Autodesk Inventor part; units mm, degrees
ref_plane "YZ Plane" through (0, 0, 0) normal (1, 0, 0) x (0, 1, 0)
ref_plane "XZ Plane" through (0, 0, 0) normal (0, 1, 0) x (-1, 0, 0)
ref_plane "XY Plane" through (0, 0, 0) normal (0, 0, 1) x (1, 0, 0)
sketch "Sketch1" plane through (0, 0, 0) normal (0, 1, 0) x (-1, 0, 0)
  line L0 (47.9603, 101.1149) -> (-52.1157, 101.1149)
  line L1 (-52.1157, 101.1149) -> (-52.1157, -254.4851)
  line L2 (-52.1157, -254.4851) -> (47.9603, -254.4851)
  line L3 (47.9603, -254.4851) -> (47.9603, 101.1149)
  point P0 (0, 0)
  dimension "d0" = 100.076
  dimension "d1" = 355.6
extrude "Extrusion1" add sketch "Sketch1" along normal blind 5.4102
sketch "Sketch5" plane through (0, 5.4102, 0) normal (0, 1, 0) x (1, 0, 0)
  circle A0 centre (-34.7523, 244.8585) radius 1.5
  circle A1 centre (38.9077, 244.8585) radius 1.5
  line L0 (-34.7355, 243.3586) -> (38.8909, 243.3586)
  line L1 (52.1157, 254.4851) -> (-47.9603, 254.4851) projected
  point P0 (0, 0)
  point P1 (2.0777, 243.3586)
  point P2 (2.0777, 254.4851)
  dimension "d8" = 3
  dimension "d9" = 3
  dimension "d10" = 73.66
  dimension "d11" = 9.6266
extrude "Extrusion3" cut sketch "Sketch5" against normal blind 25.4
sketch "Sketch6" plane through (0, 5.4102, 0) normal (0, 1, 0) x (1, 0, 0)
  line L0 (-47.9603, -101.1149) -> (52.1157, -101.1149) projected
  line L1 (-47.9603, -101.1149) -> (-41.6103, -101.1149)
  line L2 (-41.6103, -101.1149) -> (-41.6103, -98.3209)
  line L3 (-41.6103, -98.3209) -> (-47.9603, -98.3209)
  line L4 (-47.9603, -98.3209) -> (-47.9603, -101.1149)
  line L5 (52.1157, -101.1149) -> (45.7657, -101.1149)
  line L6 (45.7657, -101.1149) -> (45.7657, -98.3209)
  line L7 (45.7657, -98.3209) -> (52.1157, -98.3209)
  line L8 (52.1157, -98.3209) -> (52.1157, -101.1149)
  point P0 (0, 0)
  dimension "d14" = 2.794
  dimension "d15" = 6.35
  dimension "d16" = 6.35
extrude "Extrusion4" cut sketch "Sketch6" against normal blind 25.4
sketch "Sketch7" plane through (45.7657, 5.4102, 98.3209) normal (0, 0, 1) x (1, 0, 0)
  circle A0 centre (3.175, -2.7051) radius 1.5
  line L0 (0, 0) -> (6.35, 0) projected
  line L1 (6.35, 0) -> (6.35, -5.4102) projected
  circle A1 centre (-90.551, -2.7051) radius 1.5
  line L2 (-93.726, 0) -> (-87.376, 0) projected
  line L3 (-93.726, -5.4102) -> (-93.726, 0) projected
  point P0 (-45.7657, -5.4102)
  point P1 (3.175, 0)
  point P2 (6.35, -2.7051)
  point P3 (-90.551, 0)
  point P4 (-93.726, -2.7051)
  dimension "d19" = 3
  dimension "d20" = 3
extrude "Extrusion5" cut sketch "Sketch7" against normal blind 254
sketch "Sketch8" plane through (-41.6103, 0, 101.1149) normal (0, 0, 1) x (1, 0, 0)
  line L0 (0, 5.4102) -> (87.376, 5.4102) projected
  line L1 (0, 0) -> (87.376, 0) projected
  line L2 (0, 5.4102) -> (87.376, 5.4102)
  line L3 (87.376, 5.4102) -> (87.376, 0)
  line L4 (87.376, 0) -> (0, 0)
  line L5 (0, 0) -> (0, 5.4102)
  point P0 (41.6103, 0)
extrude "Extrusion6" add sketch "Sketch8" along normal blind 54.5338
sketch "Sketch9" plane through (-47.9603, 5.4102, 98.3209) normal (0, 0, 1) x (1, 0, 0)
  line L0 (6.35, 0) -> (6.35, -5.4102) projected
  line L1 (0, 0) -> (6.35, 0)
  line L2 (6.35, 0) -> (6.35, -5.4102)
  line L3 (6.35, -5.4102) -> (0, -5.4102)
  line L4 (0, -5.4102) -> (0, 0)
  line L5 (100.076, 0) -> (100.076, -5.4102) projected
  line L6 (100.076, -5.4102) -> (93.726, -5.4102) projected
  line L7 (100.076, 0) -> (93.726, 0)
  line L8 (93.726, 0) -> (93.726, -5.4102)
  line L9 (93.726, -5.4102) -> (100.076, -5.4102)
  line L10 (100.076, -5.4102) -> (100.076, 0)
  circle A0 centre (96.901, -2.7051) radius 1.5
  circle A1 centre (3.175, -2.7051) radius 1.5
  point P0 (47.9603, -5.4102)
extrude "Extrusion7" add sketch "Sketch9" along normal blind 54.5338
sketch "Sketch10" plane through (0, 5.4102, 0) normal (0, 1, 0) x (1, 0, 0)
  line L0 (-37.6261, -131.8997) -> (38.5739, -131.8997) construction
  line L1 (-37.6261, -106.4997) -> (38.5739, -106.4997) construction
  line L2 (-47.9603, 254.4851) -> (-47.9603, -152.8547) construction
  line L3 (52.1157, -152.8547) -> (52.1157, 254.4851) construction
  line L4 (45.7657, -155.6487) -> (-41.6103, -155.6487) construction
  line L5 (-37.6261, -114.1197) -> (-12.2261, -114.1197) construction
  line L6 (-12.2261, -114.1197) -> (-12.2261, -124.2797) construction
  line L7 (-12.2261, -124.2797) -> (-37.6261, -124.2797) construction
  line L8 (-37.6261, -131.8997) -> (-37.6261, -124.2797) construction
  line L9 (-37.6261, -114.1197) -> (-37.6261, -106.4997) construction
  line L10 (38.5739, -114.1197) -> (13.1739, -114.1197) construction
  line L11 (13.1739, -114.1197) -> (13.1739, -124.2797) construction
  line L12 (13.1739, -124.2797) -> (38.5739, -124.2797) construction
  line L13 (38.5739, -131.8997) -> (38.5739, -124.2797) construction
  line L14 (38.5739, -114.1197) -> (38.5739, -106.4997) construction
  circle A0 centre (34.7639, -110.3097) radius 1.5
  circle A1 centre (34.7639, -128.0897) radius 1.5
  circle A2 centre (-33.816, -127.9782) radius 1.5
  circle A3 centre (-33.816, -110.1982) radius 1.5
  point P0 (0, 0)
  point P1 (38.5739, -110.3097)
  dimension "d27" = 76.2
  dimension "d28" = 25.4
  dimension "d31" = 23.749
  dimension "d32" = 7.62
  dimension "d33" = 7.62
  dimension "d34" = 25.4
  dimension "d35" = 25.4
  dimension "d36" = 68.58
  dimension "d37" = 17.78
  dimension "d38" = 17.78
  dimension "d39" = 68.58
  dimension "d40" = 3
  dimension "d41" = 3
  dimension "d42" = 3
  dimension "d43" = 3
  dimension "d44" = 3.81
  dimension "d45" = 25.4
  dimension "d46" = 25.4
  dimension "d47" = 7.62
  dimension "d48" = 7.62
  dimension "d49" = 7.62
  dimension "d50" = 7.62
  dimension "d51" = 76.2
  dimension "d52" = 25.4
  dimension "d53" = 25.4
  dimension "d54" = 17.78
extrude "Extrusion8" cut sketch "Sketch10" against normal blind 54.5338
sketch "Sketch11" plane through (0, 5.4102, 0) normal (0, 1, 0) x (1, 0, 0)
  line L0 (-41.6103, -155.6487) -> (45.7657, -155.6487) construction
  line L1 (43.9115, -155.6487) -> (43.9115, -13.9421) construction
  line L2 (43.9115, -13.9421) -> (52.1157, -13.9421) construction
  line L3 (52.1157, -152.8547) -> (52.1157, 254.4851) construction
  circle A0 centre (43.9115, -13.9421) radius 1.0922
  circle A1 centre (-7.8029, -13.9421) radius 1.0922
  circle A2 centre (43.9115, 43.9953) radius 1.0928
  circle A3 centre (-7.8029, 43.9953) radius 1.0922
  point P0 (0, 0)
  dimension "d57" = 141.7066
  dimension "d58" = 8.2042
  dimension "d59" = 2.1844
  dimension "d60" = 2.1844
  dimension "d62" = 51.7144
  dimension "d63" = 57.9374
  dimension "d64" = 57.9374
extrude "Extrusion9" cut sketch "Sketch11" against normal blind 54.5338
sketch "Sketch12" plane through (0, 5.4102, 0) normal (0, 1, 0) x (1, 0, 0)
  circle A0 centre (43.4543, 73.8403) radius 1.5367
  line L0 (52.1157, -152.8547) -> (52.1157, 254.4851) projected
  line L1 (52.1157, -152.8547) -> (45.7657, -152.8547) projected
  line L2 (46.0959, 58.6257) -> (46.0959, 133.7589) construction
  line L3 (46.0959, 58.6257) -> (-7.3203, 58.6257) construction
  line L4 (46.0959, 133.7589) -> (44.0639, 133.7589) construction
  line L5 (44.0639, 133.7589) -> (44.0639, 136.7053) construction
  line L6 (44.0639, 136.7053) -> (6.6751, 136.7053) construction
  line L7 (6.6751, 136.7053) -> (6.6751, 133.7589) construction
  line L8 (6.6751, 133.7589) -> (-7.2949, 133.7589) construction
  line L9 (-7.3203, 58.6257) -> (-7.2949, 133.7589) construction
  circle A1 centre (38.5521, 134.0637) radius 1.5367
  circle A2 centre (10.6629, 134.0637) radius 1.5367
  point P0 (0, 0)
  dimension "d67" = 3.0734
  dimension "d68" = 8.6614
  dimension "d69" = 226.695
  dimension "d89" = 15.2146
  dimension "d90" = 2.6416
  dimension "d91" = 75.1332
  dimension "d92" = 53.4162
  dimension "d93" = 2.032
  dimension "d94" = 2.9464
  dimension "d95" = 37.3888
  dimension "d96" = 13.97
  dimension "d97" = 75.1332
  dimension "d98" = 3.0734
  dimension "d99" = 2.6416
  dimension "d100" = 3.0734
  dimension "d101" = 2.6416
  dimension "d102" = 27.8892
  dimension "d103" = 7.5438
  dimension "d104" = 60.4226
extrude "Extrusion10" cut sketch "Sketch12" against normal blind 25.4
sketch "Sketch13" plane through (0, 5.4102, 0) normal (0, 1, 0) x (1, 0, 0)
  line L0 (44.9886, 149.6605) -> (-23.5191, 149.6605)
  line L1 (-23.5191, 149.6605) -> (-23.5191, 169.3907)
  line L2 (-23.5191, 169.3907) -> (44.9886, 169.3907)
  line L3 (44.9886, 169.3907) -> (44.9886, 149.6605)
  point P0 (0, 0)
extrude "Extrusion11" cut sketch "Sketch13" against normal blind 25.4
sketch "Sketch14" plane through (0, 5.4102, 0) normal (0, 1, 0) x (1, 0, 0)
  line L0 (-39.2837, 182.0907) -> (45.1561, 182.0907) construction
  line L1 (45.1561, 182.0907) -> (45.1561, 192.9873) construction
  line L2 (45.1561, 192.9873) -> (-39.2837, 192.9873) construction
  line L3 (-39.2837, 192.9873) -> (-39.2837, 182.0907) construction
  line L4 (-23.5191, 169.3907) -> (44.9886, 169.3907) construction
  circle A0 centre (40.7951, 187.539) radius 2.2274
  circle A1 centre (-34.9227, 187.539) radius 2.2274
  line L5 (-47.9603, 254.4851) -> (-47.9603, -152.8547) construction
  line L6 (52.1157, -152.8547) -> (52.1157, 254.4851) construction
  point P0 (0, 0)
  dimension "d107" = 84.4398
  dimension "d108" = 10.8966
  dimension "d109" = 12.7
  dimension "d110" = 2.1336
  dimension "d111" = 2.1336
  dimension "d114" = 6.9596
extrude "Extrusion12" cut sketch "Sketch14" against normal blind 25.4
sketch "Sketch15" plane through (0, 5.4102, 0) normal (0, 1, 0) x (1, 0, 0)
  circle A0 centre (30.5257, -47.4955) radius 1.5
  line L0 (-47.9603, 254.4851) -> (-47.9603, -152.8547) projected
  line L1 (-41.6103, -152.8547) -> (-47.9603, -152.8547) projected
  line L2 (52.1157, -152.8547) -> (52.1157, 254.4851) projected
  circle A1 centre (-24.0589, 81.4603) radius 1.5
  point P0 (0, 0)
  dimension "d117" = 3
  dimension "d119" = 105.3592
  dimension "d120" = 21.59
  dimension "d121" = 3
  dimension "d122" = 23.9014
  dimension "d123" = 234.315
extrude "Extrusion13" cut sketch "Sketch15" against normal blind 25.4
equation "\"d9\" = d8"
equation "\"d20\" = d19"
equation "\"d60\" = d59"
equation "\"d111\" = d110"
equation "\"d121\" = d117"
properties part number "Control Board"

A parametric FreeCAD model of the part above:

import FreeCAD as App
import Part
import Sketcher
Q = App.Units.Quantity


def add_polygon(sketch, points):
    """Adds a closed chain of lines whose ends are joined by coincident constraints."""
    first, n = sketch.GeometryCount, len(points)
    for a, b in zip(points, points[1:] + points[:1]):
        sketch.addGeometry(Part.LineSegment(App.Vector(*a, 0), App.Vector(*b, 0)), False)
    for i in range(n):
        sketch.addConstraint(Sketcher.Constraint("Coincident", first + i, 2, first + (i + 1) % n, 1))

doc = App.newDocument("Part")
params = doc.addObject("Spreadsheet::Sheet", "Params")
for row, (alias, value) in enumerate([
    ("sketch1_height", "14 in"),
    ("sketch1_width", "3.94 in"),
    ("pad1_length", "0.213 in"),
    ("pocket1_length", "1 in"),
    ("sketch3_width", "0.25 in"),
    ("sketch3_height", "0.11 in"),
    ("pocket2_length", "1 in"),
    ("pocket3_length", "10 in"),
    ("sketch5_width", "3.44 in"),
    ("sketch5_height", "0.213 in"),
    ("pad2_length", "2.147 in"),
    ("sketch6_width", "0.25 in"),
    ("sketch6_height", "0.213 in"),
    ("pad3_length", "2.147 in"),
    ("pocket4_length", "2.147 in"),
    ("sketch8_diameter", "0.086 in"),
    ("pocket5_length", "2.147 in"),
    ("sketch9_diameter", "0.121 in"),
    ("pocket6_length", "1 in"),
    ("pocket7_length", "1 in"),
    ("pocket8_length", "1 in"),
    ("pocket9_length", "1 in"),
], start=1):
    params.set(f"A{row}", alias)
    params.set(f"B{row}", "=" + value)
    params.setAlias(f"B{row}", alias)

body = doc.addObject("PartDesign::Body", "Body")

# Sketch on XZ plane
sketch1 = doc.addObject("Sketcher::SketchObject", "Sketch")
body.addObject(sketch1)
sketch1.AttachmentSupport = (doc.XZ_Plane, [""])
sketch1.MapMode = "FlatFace"
add_polygon(sketch1, [(-48, -254), (-48, 101), (52, 101), (52, -254)])  # lines 0-3
sketch1.addConstraint(Sketcher.Constraint("Vertical", 0))
sketch1.addConstraint(Sketcher.Constraint("Horizontal", 1))
sketch1.addConstraint(Sketcher.Constraint("Vertical", 2))
sketch1.addConstraint(Sketcher.Constraint("Horizontal", 3))
sketch1.addConstraint(Sketcher.Constraint("DistanceY", 0, 1, 0, 2, Q("14 in")))
sketch1.addConstraint(Sketcher.Constraint("DistanceX", 1, 1, 1, 2, Q("3.94 in")))
sketch1.addConstraint(Sketcher.Constraint("DistanceX", 0, 2, -1, 1, Q("1.8882 in")))
sketch1.addConstraint(Sketcher.Constraint("DistanceY", -1, 1, 0, 2, Q("3.9809 in")))
sketch1.setExpression("Constraints[8]", "Params.sketch1_height")
sketch1.setExpression("Constraints[9]", "Params.sketch1_width")
pad1 = doc.addObject("PartDesign::Pad", "Pad")
body.addObject(pad1)
pad1.Profile = sketch1
pad1.setExpression("Length", "Params.pad1_length")
pad1.Reversed = True

# Sketch on XZ plane
sketch2 = doc.addObject("Sketcher::SketchObject", "Sketch001")
body.addObject(sketch2)
sketch2.AttachmentSupport = (doc.XZ_Plane, [""])
sketch2.MapMode = "FlatFace"
sketch2.AttachmentOffset = App.Placement(App.Vector(0, 0, -0.213 * 25.4), App.Rotation())
sketch2.addGeometry(Part.Circle(App.Vector(-34.8, -244.9, 0), App.Vector(0, 0, 1), 1.5), False)
sketch2.addGeometry(Part.Circle(App.Vector(38.9, -244.9, 0), App.Vector(0, 0, 1), 1.5), False)
sketch2.addConstraint(Sketcher.Constraint("Equal", 0, 1))
sketch2.addConstraint(Sketcher.Constraint("Horizontal", 0, 3, 1, 3))
sketch2.addConstraint(Sketcher.Constraint("Diameter", 0, Q("0.1181 in")))
sketch2.addConstraint(Sketcher.Constraint("DistanceX", 0, 3, 1, 3, Q("2.9 in")))
sketch2.addConstraint(Sketcher.Constraint("DistanceX", 0, 3, -1, 1, Q("1.3682 in")))
sketch2.addConstraint(Sketcher.Constraint("DistanceY", 0, 3, -1, 1, Q("9.6401 in")))
pocket1 = doc.addObject("PartDesign::Pocket", "Pocket")
body.addObject(pocket1)
pocket1.Profile = sketch2
pocket1.setExpression("Length", "Params.pocket1_length")
pocket1.Reversed = True

# Sketch on XZ plane
sketch3 = doc.addObject("Sketcher::SketchObject", "Sketch002")
body.addObject(sketch3)
sketch3.AttachmentSupport = (doc.XZ_Plane, [""])
sketch3.MapMode = "FlatFace"
sketch3.AttachmentOffset = App.Placement(App.Vector(0, 0, -0.213 * 25.4), App.Rotation())
add_polygon(sketch3, [(-48, 98.3), (-48, 101.1), (-41.6, 101.1), (-41.6, 98.3)])  # lines 0-3
add_polygon(sketch3, [(45.8, 98.3), (45.8, 101.1), (52.1, 101.1), (52.1, 98.3)])  # lines 4-7
sketch3.addConstraint(Sketcher.Constraint("Vertical", 0))
sketch3.addConstraint(Sketcher.Constraint("Horizontal", 1))
sketch3.addConstraint(Sketcher.Constraint("Vertical", 2))
sketch3.addConstraint(Sketcher.Constraint("Horizontal", 3))
sketch3.addConstraint(Sketcher.Constraint("Vertical", 4))
sketch3.addConstraint(Sketcher.Constraint("Horizontal", 5))
sketch3.addConstraint(Sketcher.Constraint("Vertical", 6))
sketch3.addConstraint(Sketcher.Constraint("Horizontal", 7))
sketch3.addConstraint(Sketcher.Constraint("Horizontal", 1, 2, 4, 2))
sketch3.addConstraint(Sketcher.Constraint("Horizontal", 3, 2, 6, 2))
sketch3.addConstraint(Sketcher.Constraint("Equal", 3, 5))
sketch3.addConstraint(Sketcher.Constraint("DistanceX", 1, 1, 1, 2, Q("0.25 in")))
sketch3.addConstraint(Sketcher.Constraint("DistanceY", 0, 1, 0, 2, Q("0.11 in")))
sketch3.addConstraint(Sketcher.Constraint("DistanceX", 1, 2, 4, 2, Q("3.44 in")))
sketch3.addConstraint(Sketcher.Constraint("DistanceX", 0, 2, -1, 1, Q("1.8882 in")))
sketch3.addConstraint(Sketcher.Constraint("DistanceY", -1, 1, 0, 2, Q("3.9809 in")))
sketch3.setExpression("Constraints[19]", "Params.sketch3_width")
sketch3.setExpression("Constraints[20]", "Params.sketch3_height")
pocket2 = doc.addObject("PartDesign::Pocket", "Pocket001")
body.addObject(pocket2)
pocket2.Profile = sketch3
pocket2.setExpression("Length", "Params.pocket2_length")
pocket2.Reversed = True

# Sketch on XY plane
sketch4 = doc.addObject("Sketcher::SketchObject", "Sketch003")
body.addObject(sketch4)
sketch4.AttachmentSupport = (doc.XY_Plane, [""])
sketch4.MapMode = "FlatFace"
sketch4.AttachmentOffset = App.Placement(App.Vector(0, 0, 3.8709016 * 25.4), App.Rotation())
sketch4.addGeometry(Part.Circle(App.Vector(48.9, 2.7, 0), App.Vector(0, 0, 1), 1.5), False)
sketch4.addGeometry(Part.Circle(App.Vector(-44.8, 2.7, 0), App.Vector(0, 0, 1), 1.5), False)
sketch4.addConstraint(Sketcher.Constraint("Equal", 0, 1))
sketch4.addConstraint(Sketcher.Constraint("Horizontal", 0, 3, 1, 3))
sketch4.addConstraint(Sketcher.Constraint("Diameter", 0, Q("0.1181 in")))
sketch4.addConstraint(Sketcher.Constraint("DistanceX", 1, 3, 0, 3, Q("3.69 in")))
sketch4.addConstraint(Sketcher.Constraint("DistanceX", -1, 1, 0, 3, Q("1.9268 in")))
sketch4.addConstraint(Sketcher.Constraint("DistanceY", -1, 1, 0, 3, Q("0.1065 in")))
pocket3 = doc.addObject("PartDesign::Pocket", "Pocket002")
body.addObject(pocket3)
pocket3.Profile = sketch4
pocket3.setExpression("Length", "Params.pocket3_length")

# Sketch on XY plane
sketch5 = doc.addObject("Sketcher::SketchObject", "Sketch004")
body.addObject(sketch5)
sketch5.AttachmentSupport = (doc.XY_Plane, [""])
sketch5.MapMode = "FlatFace"
sketch5.AttachmentOffset = App.Placement(App.Vector(0, 0, 3.9809016 * 25.4), App.Rotation())
add_polygon(sketch5, [(46, 5), (-42, 5), (-42, 0), (46, 0)])  # lines 0-3
sketch5.addConstraint(Sketcher.Constraint("Horizontal", 0))
sketch5.addConstraint(Sketcher.Constraint("Vertical", 1))
sketch5.addConstraint(Sketcher.Constraint("Horizontal", 2))
sketch5.addConstraint(Sketcher.Constraint("Vertical", 3))
sketch5.addConstraint(Sketcher.Constraint("PointOnObject", 1, 2, -1))
sketch5.addConstraint(Sketcher.Constraint("DistanceX", 0, 2, 0, 1, Q("3.44 in")))
sketch5.addConstraint(Sketcher.Constraint("DistanceY", 1, 2, 1, 1, Q("0.213 in")))
sketch5.addConstraint(Sketcher.Constraint("DistanceX", 0, 2, -1, 1, Q("1.6382 in")))
sketch5.setExpression("Constraints[9]", "Params.sketch5_width")
sketch5.setExpression("Constraints[10]", "Params.sketch5_height")
pad2 = doc.addObject("PartDesign::Pad", "Pad001")
body.addObject(pad2)
pad2.Profile = sketch5
pad2.setExpression("Length", "Params.pad2_length")

# Sketch on XY plane
sketch6 = doc.addObject("Sketcher::SketchObject", "Sketch005")
body.addObject(sketch6)
sketch6.AttachmentSupport = (doc.XY_Plane, [""])
sketch6.MapMode = "FlatFace"
sketch6.AttachmentOffset = App.Placement(App.Vector(0, 0, 3.8709016 * 25.4), App.Rotation())
add_polygon(sketch6, [(-41.6, 0), (-41.6, 5.4), (-48, 5.4), (-48, 0)])  # lines 0-3
sketch6.addGeometry(Part.Circle(App.Vector(-44.8, 2.7, 0), App.Vector(0, 0, 1), 1.5), False)  # 4
add_polygon(sketch6, [(52.1, 0), (52.1, 5.4), (45.8, 5.4), (45.8, 0)])  # lines 5-8
sketch6.addGeometry(Part.Circle(App.Vector(48.9, 2.7, 0), App.Vector(0, 0, 1), 1.5), False)  # 9
sketch6.addConstraint(Sketcher.Constraint("Vertical", 0))
sketch6.addConstraint(Sketcher.Constraint("Horizontal", 1))
sketch6.addConstraint(Sketcher.Constraint("Vertical", 2))
sketch6.addConstraint(Sketcher.Constraint("Horizontal", 3))
sketch6.addConstraint(Sketcher.Constraint("Vertical", 5))
sketch6.addConstraint(Sketcher.Constraint("Horizontal", 6))
sketch6.addConstraint(Sketcher.Constraint("Vertical", 7))
sketch6.addConstraint(Sketcher.Constraint("Horizontal", 8))
sketch6.addConstraint(Sketcher.Constraint("Equal", 4, 9))
sketch6.addConstraint(Sketcher.Constraint("PointOnObject", 2, 2, -1))
sketch6.addConstraint(Sketcher.Constraint("PointOnObject", 7, 2, -1))
sketch6.addConstraint(Sketcher.Constraint("Horizontal", 4, 3, 9, 3))
sketch6.addConstraint(Sketcher.Constraint("Horizontal", 1, 2, 5, 2))
sketch6.addConstraint(Sketcher.Constraint("Equal", 3, 6))
sketch6.addConstraint(Sketcher.Constraint("Diameter", 4, Q("0.1181 in")))
sketch6.addConstraint(Sketcher.Constraint("DistanceX", 1, 2, 1, 1, Q("0.25 in")))
sketch6.addConstraint(Sketcher.Constraint("DistanceY", 0, 1, 0, 2, Q("0.213 in")))
sketch6.addConstraint(Sketcher.Constraint("DistanceX", 4, 3, 9, 3, Q("3.69 in")))
sketch6.addConstraint(Sketcher.Constraint("DistanceX", 0, 2, 5, 2, Q("3.69 in")))
sketch6.addConstraint(Sketcher.Constraint("DistanceX", 4, 3, 0, 2, Q("0.125 in")))
sketch6.addConstraint(Sketcher.Constraint("DistanceX", 4, 3, -1, 1, Q("1.7632 in")))
sketch6.addConstraint(Sketcher.Constraint("DistanceY", -1, 1, 4, 3, Q("0.1065 in")))
sketch6.setExpression("Constraints[23]", "Params.sketch6_width")
sketch6.setExpression("Constraints[24]", "Params.sketch6_height")
pad3 = doc.addObject("PartDesign::Pad", "Pad002")
body.addObject(pad3)
pad3.Profile = sketch6
pad3.setExpression("Length", "Params.pad3_length")

# Sketch on XZ plane
sketch7 = doc.addObject("Sketcher::SketchObject", "Sketch006")
body.addObject(sketch7)
sketch7.AttachmentSupport = (doc.XZ_Plane, [""])
sketch7.MapMode = "FlatFace"
sketch7.AttachmentOffset = App.Placement(App.Vector(0, 0, -0.213 * 25.4), App.Rotation())
sketch7.addGeometry(Part.Circle(App.Vector(34.8, 110.3, 0), App.Vector(0, 0, 1), 1.5), False)
sketch7.addGeometry(Part.Circle(App.Vector(34.8, 128.1, 0), App.Vector(0, 0, 1), 1.5), False)
sketch7.addGeometry(Part.Circle(App.Vector(-33.8, 128, 0), App.Vector(0, 0, 1), 1.5), False)
sketch7.addGeometry(Part.Circle(App.Vector(-33.8, 110.2, 0), App.Vector(0, 0, 1), 1.5), False)
sketch7.addConstraint(Sketcher.Constraint("Equal", 0, 1))
sketch7.addConstraint(Sketcher.Constraint("Equal", 1, 2))
sketch7.addConstraint(Sketcher.Constraint("Equal", 2, 3))
sketch7.addConstraint(Sketcher.Constraint("Vertical", 0, 3, 1, 3))
sketch7.addConstraint(Sketcher.Constraint("Vertical", 2, 3, 3, 3))
sketch7.addConstraint(Sketcher.Constraint("Diameter", 0, Q("0.1181 in")))
sketch7.addConstraint(Sketcher.Constraint("DistanceY", 0, 3, 1, 3, Q("0.7 in")))
sketch7.addConstraint(Sketcher.Constraint("DistanceX", 2, 3, 1, 3, Q("2.7 in")))
sketch7.addConstraint(Sketcher.Constraint("DistanceY", 3, 3, 2, 3, Q("0.7 in")))
sketch7.addConstraint(Sketcher.Constraint("DistanceY", -1, 1, 0, 3, Q("4.3429 in")))
sketch7.addConstraint(Sketcher.Constraint("DistanceY", -1, 1, 2, 3, Q("5.0385 in")))
sketch7.addConstraint(Sketcher.Constraint("DistanceX", -1, 1, 0, 3, Q("34.764 mm")))
pocket4 = doc.addObject("PartDesign::Pocket", "Pocket003")
body.addObject(pocket4)
pocket4.Profile = sketch7
pocket4.setExpression("Length", "Params.pocket4_length")
pocket4.Reversed = True

# Sketch on XZ plane
sketch8 = doc.addObject("Sketcher::SketchObject", "Sketch007")
body.addObject(sketch8)
sketch8.AttachmentSupport = (doc.XZ_Plane, [""])
sketch8.MapMode = "FlatFace"
sketch8.AttachmentOffset = App.Placement(App.Vector(0, 0, -0.213 * 25.4), App.Rotation())
sketch8.addGeometry(Part.Circle(App.Vector(43.9, 13.9, 0), App.Vector(0, 0, 1), 1.1), False)
sketch8.addGeometry(Part.Circle(App.Vector(-7.8, 13.9, 0), App.Vector(0, 0, 1), 1.1), False)
sketch8.addGeometry(Part.Circle(App.Vector(43.9, -44, 0), App.Vector(0, 0, 1), 1.1), False)
sketch8.addGeometry(Part.Circle(App.Vector(-7.8, -44, 0), App.Vector(0, 0, 1), 1.1), False)
sketch8.addConstraint(Sketcher.Constraint("Equal", 0, 1))
sketch8.addConstraint(Sketcher.Constraint("Equal", 1, 3))
sketch8.addConstraint(Sketcher.Constraint("Horizontal", 0, 3, 1, 3))
sketch8.addConstraint(Sketcher.Constraint("Horizontal", 2, 3, 3, 3))
sketch8.addConstraint(Sketcher.Constraint("Vertical", 0, 3, 2, 3))
sketch8.addConstraint(Sketcher.Constraint("Vertical", 1, 3, 3, 3))
sketch8.addConstraint(Sketcher.Constraint("Diameter", 0, Q("0.086 in")))
sketch8.addConstraint(Sketcher.Constraint("DistanceX", 1, 3, 0, 3, Q("2.036 in")))
sketch8.addConstraint(Sketcher.Constraint("DistanceY", 2, 3, 0, 3, Q("2.281 in")))
sketch8.addConstraint(Sketcher.Constraint("Diameter", 2, Q("2.1856 mm")))
sketch8.addConstraint(Sketcher.Constraint("DistanceX", -1, 1, 0, 3, Q("1.7288 in")))
sketch8.addConstraint(Sketcher.Constraint("DistanceY", -1, 1, 0, 3, Q("0.5489 in")))
sketch8.setExpression("Constraints[6]", "Params.sketch8_diameter")
pocket5 = doc.addObject("PartDesign::Pocket", "Pocket004")
body.addObject(pocket5)
pocket5.Profile = sketch8
pocket5.setExpression("Length", "Params.pocket5_length")
pocket5.Reversed = True

# Sketch on XZ plane
sketch9 = doc.addObject("Sketcher::SketchObject", "Sketch008")
body.addObject(sketch9)
sketch9.AttachmentSupport = (doc.XZ_Plane, [""])
sketch9.MapMode = "FlatFace"
sketch9.AttachmentOffset = App.Placement(App.Vector(0, 0, -0.213 * 25.4), App.Rotation())
sketch9.addGeometry(Part.Circle(App.Vector(43.5, -73.8, 0), App.Vector(0, 0, 1), 1.5), False)
sketch9.addGeometry(Part.Circle(App.Vector(38.6, -134.1, 0), App.Vector(0, 0, 1), 1.5), False)
sketch9.addGeometry(Part.Circle(App.Vector(10.7, -134.1, 0), App.Vector(0, 0, 1), 1.5), False)
sketch9.addConstraint(Sketcher.Constraint("Equal", 0, 1))
sketch9.addConstraint(Sketcher.Constraint("Equal", 1, 2))
sketch9.addConstraint(Sketcher.Constraint("Horizontal", 1, 3, 2, 3))
sketch9.addConstraint(Sketcher.Constraint("Diameter", 0, Q("0.121 in")))
sketch9.addConstraint(Sketcher.Constraint("DistanceX", 2, 3, 1, 3, Q("1.098 in")))
sketch9.addConstraint(Sketcher.Constraint("DistanceX", 1, 3, 0, 3, Q("0.193 in")))
sketch9.addConstraint(Sketcher.Constraint("DistanceY", 1, 3, 0, 3, Q("2.371 in")))
sketch9.addConstraint(Sketcher.Constraint("DistanceX", -1, 1, 0, 3, Q("1.7108 in")))
sketch9.addConstraint(Sketcher.Constraint("DistanceY", 0, 3, -1, 1, Q("2.9071 in")))
sketch9.setExpression("Constraints[3]", "Params.sketch9_diameter")
pocket6 = doc.addObject("PartDesign::Pocket", "Pocket005")
body.addObject(pocket6)
pocket6.Profile = sketch9
pocket6.setExpression("Length", "Params.pocket6_length")
pocket6.Reversed = True

# Sketch on XZ plane
sketch10 = doc.addObject("Sketcher::SketchObject", "Sketch009")
body.addObject(sketch10)
sketch10.AttachmentSupport = (doc.XZ_Plane, [""])
sketch10.MapMode = "FlatFace"
sketch10.AttachmentOffset = App.Placement(App.Vector(0, 0, -0.213 * 25.4), App.Rotation())
add_polygon(sketch10, [(-24, -150), (45, -150), (45, -169), (-24, -169)])  # lines 0-3
sketch10.addConstraint(Sketcher.Constraint("Horizontal", 0))
sketch10.addConstraint(Sketcher.Constraint("Vertical", 1))
sketch10.addConstraint(Sketcher.Constraint("Horizontal", 2))
sketch10.addConstraint(Sketcher.Constraint("Vertical", 3))
sketch10.addConstraint(Sketcher.Constraint("DistanceX", 0, 1, 0, 2, Q("68.5077 mm")))
sketch10.addConstraint(Sketcher.Constraint("DistanceY", 1, 2, 1, 1, Q("19.7302 mm")))
sketch10.addConstraint(Sketcher.Constraint("DistanceX", -1, 1, 0, 2, Q("1.7712 in")))
sketch10.addConstraint(Sketcher.Constraint("DistanceY", 0, 2, -1, 1, Q("149.6605 mm")))
pocket7 = doc.addObject("PartDesign::Pocket", "Pocket006")
body.addObject(pocket7)
pocket7.Profile = sketch10
pocket7.setExpression("Length", "Params.pocket7_length")
pocket7.Reversed = True

# Sketch on XZ plane
sketch11 = doc.addObject("Sketcher::SketchObject", "Sketch010")
body.addObject(sketch11)
sketch11.AttachmentSupport = (doc.XZ_Plane, [""])
sketch11.MapMode = "FlatFace"
sketch11.AttachmentOffset = App.Placement(App.Vector(0, 0, -0.213 * 25.4), App.Rotation())
sketch11.addGeometry(Part.Circle(App.Vector(40.8, -187.5, 0), App.Vector(0, 0, 1), 2.2), False)
sketch11.addGeometry(Part.Circle(App.Vector(-34.9, -187.5, 0), App.Vector(0, 0, 1), 2.2), False)
sketch11.addConstraint(Sketcher.Constraint("Equal", 0, 1))
sketch11.addConstraint(Sketcher.Constraint("Horizontal", 0, 3, 1, 3))
sketch11.addConstraint(Sketcher.Constraint("Diameter", 0, Q("4.4548 mm")))
sketch11.addConstraint(Sketcher.Constraint("DistanceX", -1, 1, 0, 3, Q("1.6061 in")))
sketch11.addConstraint(Sketcher.Constraint("DistanceX", 1, 3, -1, 1, Q("1.3749 in")))
sketch11.addConstraint(Sketcher.Constraint("DistanceY", 0, 3, -1, 1, Q("187.539 mm")))
pocket8 = doc.addObject("PartDesign::Pocket", "Pocket007")
body.addObject(pocket8)
pocket8.Profile = sketch11
pocket8.setExpression("Length", "Params.pocket8_length")
pocket8.Reversed = True

# Sketch on XZ plane
sketch12 = doc.addObject("Sketcher::SketchObject", "Sketch011")
body.addObject(sketch12)
sketch12.AttachmentSupport = (doc.XZ_Plane, [""])
sketch12.MapMode = "FlatFace"
sketch12.AttachmentOffset = App.Placement(App.Vector(0, 0, -0.213 * 25.4), App.Rotation())
sketch12.addGeometry(Part.Circle(App.Vector(30.5, 47.5, 0), App.Vector(0, 0, 1), 1.5), False)
sketch12.addGeometry(Part.Circle(App.Vector(-24.1, -81.5, 0), App.Vector(0, 0, 1), 1.5), False)
sketch12.addConstraint(Sketcher.Constraint("Equal", 0, 1))
sketch12.addConstraint(Sketcher.Constraint("Diameter", 0, Q("0.1181 in")))
sketch12.addConstraint(Sketcher.Constraint("DistanceX", 1, 3, 0, 3, Q("2.149 in")))
sketch12.addConstraint(Sketcher.Constraint("DistanceY", 1, 3, 0, 3, Q("5.077 in")))
sketch12.addConstraint(Sketcher.Constraint("DistanceX", -1, 1, 0, 3, Q("1.2018 in")))
sketch12.addConstraint(Sketcher.Constraint("DistanceY", -1, 1, 0, 3, Q("1.8699 in")))
pocket9 = doc.addObject("PartDesign::Pocket", "Pocket008")
body.addObject(pocket9)
pocket9.Profile = sketch12
pocket9.setExpression("Length", "Params.pocket9_length")
pocket9.Reversed = True

doc.recompute()
